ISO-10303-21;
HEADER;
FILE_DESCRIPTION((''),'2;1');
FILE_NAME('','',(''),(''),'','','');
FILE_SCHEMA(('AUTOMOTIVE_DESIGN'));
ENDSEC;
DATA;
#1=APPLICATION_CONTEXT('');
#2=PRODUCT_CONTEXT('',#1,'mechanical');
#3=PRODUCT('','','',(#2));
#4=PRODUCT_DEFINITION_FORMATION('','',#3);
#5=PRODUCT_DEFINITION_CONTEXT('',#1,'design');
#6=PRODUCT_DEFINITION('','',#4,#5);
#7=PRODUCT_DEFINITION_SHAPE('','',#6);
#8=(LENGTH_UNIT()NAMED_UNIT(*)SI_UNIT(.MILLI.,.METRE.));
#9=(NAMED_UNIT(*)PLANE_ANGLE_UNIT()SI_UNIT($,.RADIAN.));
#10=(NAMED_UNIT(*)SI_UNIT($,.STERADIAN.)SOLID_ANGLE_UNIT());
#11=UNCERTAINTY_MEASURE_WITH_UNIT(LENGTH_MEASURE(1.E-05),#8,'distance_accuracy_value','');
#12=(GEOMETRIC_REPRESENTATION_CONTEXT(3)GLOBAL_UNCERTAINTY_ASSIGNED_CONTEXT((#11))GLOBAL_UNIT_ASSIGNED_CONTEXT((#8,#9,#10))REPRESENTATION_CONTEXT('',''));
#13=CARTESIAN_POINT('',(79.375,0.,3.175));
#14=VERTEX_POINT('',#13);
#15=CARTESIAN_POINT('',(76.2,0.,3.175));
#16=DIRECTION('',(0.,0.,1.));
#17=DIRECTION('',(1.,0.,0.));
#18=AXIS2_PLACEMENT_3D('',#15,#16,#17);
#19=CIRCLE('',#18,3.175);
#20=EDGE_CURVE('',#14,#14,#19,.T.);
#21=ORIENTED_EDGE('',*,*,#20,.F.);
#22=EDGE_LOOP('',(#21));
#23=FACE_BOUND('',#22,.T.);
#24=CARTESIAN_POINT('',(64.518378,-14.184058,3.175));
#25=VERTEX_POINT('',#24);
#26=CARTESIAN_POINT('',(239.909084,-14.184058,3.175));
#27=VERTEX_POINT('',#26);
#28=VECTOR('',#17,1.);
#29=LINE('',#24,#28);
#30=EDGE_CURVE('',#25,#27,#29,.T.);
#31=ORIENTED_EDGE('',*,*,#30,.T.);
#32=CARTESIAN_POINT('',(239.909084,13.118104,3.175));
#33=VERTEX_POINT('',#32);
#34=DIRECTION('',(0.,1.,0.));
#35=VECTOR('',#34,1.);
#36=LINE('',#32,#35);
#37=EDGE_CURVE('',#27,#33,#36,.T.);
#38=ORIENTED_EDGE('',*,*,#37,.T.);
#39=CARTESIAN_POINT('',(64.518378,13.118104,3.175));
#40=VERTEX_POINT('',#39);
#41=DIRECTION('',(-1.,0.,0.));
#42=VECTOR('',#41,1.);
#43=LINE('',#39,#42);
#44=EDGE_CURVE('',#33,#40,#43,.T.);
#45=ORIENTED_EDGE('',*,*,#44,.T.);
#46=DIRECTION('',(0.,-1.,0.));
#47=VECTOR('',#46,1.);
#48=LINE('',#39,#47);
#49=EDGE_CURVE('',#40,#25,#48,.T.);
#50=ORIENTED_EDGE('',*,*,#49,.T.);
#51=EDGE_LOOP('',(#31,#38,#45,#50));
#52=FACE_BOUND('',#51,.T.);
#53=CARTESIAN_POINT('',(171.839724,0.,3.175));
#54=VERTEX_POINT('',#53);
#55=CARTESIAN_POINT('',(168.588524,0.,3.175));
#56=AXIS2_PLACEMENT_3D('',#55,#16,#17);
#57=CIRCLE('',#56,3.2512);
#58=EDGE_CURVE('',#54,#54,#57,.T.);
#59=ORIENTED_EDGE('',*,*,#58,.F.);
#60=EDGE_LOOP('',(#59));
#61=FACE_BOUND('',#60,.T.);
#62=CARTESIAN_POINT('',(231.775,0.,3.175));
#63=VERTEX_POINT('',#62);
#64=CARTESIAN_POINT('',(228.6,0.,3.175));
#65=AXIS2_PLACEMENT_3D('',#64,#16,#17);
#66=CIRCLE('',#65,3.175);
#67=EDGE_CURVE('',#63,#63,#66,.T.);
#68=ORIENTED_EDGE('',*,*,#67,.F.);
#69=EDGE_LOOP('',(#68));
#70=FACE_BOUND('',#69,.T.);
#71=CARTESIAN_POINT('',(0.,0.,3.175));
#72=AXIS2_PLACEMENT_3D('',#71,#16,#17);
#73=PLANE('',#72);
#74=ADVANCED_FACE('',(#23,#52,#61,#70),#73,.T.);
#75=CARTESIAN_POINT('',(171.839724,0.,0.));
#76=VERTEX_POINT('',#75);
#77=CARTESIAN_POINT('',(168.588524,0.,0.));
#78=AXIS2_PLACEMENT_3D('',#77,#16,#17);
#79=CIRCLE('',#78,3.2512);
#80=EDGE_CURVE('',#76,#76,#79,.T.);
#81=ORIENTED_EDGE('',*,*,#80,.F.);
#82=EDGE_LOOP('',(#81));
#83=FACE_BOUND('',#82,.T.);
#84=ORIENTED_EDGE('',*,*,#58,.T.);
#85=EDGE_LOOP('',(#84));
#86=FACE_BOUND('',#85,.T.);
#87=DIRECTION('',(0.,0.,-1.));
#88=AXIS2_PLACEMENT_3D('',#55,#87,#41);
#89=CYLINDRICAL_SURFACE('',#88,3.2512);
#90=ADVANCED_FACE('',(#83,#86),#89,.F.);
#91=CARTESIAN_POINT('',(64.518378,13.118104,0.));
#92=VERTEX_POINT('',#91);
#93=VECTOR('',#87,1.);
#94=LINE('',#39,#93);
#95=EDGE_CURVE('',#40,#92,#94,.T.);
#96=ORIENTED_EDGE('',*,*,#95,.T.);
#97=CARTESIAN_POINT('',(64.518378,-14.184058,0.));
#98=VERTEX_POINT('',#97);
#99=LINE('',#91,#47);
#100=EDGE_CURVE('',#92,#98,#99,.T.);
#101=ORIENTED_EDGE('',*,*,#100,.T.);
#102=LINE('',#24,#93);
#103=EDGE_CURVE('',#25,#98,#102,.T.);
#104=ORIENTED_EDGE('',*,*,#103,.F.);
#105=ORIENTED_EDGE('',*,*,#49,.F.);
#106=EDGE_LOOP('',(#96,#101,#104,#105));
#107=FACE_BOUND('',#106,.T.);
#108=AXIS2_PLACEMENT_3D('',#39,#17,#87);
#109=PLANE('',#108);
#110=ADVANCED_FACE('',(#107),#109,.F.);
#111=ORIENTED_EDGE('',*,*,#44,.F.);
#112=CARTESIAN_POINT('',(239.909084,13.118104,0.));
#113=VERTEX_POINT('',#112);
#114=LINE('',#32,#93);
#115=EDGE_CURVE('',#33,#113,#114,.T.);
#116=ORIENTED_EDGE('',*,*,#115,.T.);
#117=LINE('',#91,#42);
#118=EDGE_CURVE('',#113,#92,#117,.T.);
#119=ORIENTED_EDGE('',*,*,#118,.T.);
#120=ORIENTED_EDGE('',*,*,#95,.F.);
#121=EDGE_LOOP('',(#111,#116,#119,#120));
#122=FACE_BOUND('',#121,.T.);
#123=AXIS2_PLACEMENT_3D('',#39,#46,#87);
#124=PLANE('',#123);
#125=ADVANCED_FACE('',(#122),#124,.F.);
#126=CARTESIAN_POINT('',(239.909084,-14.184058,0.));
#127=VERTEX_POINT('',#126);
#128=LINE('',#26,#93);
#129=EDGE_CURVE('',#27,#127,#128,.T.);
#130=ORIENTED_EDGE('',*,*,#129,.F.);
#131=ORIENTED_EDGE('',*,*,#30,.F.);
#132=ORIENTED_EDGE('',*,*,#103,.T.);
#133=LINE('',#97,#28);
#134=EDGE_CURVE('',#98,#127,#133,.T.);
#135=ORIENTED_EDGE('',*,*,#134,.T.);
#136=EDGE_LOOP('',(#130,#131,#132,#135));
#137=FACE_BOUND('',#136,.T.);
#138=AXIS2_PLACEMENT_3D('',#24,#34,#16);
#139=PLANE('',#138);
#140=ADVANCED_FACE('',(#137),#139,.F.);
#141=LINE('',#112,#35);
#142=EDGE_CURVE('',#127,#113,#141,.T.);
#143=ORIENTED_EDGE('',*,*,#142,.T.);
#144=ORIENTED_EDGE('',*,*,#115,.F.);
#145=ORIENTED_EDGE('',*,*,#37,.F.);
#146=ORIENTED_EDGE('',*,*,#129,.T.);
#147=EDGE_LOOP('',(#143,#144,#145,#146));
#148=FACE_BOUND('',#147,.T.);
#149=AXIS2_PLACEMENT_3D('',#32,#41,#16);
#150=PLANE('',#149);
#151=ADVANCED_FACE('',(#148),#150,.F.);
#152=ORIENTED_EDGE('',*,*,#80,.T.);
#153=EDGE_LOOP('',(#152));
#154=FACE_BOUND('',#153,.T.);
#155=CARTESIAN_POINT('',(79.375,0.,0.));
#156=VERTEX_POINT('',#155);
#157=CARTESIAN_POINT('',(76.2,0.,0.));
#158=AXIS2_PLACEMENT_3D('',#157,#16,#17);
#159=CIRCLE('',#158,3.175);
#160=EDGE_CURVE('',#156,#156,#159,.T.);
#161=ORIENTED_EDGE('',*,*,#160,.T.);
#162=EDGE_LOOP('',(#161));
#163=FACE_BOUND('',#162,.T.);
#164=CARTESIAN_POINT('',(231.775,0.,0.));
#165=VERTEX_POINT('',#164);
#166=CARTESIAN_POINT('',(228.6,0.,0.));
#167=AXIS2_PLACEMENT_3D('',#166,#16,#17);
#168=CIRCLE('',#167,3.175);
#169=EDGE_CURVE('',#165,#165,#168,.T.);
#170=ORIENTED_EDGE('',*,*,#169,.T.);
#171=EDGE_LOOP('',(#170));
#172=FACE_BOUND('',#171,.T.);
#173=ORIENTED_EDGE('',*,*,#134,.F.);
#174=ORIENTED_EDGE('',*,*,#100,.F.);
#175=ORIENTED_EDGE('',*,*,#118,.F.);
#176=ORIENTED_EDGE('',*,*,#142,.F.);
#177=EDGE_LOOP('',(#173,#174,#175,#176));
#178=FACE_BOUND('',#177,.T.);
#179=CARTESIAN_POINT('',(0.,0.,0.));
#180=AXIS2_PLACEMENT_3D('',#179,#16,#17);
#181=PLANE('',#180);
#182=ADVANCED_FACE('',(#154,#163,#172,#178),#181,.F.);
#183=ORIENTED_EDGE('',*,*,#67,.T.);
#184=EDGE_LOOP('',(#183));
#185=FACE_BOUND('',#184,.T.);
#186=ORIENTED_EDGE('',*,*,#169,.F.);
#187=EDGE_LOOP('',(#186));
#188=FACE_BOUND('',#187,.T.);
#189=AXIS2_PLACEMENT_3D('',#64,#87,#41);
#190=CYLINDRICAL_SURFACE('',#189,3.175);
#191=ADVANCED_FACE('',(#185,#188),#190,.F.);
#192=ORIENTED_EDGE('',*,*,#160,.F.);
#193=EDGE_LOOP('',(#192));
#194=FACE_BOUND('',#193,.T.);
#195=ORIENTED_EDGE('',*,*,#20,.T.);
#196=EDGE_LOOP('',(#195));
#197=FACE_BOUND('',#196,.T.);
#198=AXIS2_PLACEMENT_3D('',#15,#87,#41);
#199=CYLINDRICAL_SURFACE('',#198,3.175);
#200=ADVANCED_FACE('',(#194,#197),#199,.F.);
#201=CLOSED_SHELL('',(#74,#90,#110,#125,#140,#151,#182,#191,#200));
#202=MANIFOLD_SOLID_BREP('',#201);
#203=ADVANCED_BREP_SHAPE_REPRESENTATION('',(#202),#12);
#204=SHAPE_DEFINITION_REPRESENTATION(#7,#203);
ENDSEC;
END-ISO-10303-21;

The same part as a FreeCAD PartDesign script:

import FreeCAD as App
import Part
import Sketcher
Q = App.Units.Quantity


def add_polygon(sketch, points):
    """Adds a closed chain of lines whose ends are joined by coincident constraints."""
    first, n = sketch.GeometryCount, len(points)
    for a, b in zip(points, points[1:] + points[:1]):
        sketch.addGeometry(Part.LineSegment(App.Vector(*a, 0), App.Vector(*b, 0)), False)
    for i in range(n):
        sketch.addConstraint(Sketcher.Constraint("Coincident", first + i, 2, first + (i + 1) % n, 1))

doc = App.newDocument("Part")
params = doc.addObject("Spreadsheet::Sheet", "Params")
for row, (alias, value) in enumerate([
    ("sketch1_diameter", "0.25 in"),
    ("sketch1_diameter2", "0.256 in"),
    ("pad1_length", "0.125 in"),
], start=1):
    params.set(f"A{row}", alias)
    params.set(f"B{row}", "=" + value)
    params.setAlias(f"B{row}", alias)

body = doc.addObject("PartDesign::Body", "Body")

# Sketch on XY plane
sketch1 = body.newObject("Sketcher::SketchObject", "Sketch")
sketch1.AttachmentSupport = (doc.getObject("XY_Plane"), [""])
sketch1.MapMode = "FlatFace"
add_polygon(sketch1, [(64.5, 13.1), (64.5, -14.2), (239.9, -14.2), (239.9, 13.1)])  # lines 0-3
sketch1.addGeometry(Part.Circle(App.Vector(76.2, 0, 0), App.Vector(0, 0, 1), 3.2), False)  # 4
sketch1.addGeometry(Part.Circle(App.Vector(168.6, 0, 0), App.Vector(0, 0, 1), 3.3), False)  # 5
sketch1.addGeometry(Part.Circle(App.Vector(228.6, 0, 0), App.Vector(0, 0, 1), 3.2), False)  # 6
sketch1.addConstraint([
    Sketcher.Constraint("Vertical", 0),
    Sketcher.Constraint("Horizontal", 1),
    Sketcher.Constraint("Vertical", 2),
    Sketcher.Constraint("Horizontal", 3),
    Sketcher.Constraint("Equal", 4, 6),
    Sketcher.Constraint("PointOnObject", 4, 3, -1),
    Sketcher.Constraint("PointOnObject", 5, 3, -1),
    Sketcher.Constraint("PointOnObject", 6, 3, -1),
    Sketcher.Constraint("Diameter", 4, Q("0.25 in")),
    Sketcher.Constraint("Diameter", 5, Q("0.256 in")),
    Sketcher.Constraint("DistanceX", -1, 1, 4, 3, Q("3 in")),
    Sketcher.Constraint("DistanceX", -1, 1, 6, 3, Q("9 in")),
    Sketcher.Constraint("DistanceX", 1, 1, 1, 2, 175.390706),
    Sketcher.Constraint("DistanceY", 0, 2, 0, 1, 27.302162),
    Sketcher.Constraint("DistanceX", -1, 1, 0, 2, 64.518378),
    Sketcher.Constraint("DistanceY", 0, 2, -1, 1, 14.184058),
    Sketcher.Constraint("DistanceX", 5, 3, 1, 2, 71.32056),
])
sketch1.setExpression("Constraints[12]", "Params.sketch1_diameter")
sketch1.setExpression("Constraints[13]", "Params.sketch1_diameter2")
pad1 = body.newObject("PartDesign::Pad", "Pad")
pad1.Profile = sketch1
pad1.setExpression("Length", "Params.pad1_length")

doc.recompute()
